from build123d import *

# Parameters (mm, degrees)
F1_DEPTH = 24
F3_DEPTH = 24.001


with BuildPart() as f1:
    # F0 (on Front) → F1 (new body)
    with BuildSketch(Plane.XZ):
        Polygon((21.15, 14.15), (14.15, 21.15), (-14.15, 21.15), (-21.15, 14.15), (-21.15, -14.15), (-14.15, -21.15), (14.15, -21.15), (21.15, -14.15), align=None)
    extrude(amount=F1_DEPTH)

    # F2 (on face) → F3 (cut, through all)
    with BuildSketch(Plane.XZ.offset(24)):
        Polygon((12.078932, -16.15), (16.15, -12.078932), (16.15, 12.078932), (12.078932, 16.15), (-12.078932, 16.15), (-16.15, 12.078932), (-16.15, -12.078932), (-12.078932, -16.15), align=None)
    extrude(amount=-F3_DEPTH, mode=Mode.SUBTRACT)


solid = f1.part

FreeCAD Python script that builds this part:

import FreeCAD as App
import Part
import Sketcher


def add_polygon(sketch, points):
    """Adds a closed chain of lines whose ends are joined by coincident constraints."""
    first, n = sketch.GeometryCount, len(points)
    for a, b in zip(points, points[1:] + points[:1]):
        sketch.addGeometry(Part.LineSegment(App.Vector(*a, 0), App.Vector(*b, 0)), False)
    for i in range(n):
        sketch.addConstraint(Sketcher.Constraint("Coincident", first + i, 2, first + (i + 1) % n, 1))

doc = App.newDocument("Part")
body = doc.addObject("PartDesign::Body", "Body")

# Sketch on XZ plane
sketch1 = body.newObject("Sketcher::SketchObject", "Sketch")
sketch1.AttachmentSupport = (doc.getObject("XZ_Plane"), [""])
sketch1.MapMode = "FlatFace"
add_polygon(sketch1, [(21, 14), (14, 21), (-14, 21), (-21, 14), (-21, -14), (-14, -21), (14, -21), (21, -14)])  # lines 0-7
sketch1.addConstraint([
    Sketcher.Constraint("Horizontal", 1),
    Sketcher.Constraint("Vertical", 3),
    Sketcher.Constraint("Horizontal", 5),
    Sketcher.Constraint("Vertical", 7),
    Sketcher.Constraint("Symmetric", 0, 2, 4, 2, -1, 1),
    Sketcher.Constraint("Symmetric", 2, 2, 6, 2, -1, 1),
    Sketcher.Constraint("Perpendicular", 0, 2),
    Sketcher.Constraint("Perpendicular", 2, 4),
    Sketcher.Constraint("Perpendicular", 4, 6),
    Sketcher.Constraint("Horizontal", 3, 2, 6, 2),
    Sketcher.Constraint("Vertical", 1, 2, 4, 2),
    Sketcher.Constraint("Equal", 5, 3),
    Sketcher.Constraint("DistanceX", 1, 2, 1, 1, 28.3),
    Sketcher.Constraint("DistanceX", 2, 2, 1, 2, 7.0),
])
pad1 = body.newObject("PartDesign::Pad", "Pad")
pad1.Profile = sketch1
pad1.Length = 24

# Sketch on XZ plane
sketch2 = body.newObject("Sketcher::SketchObject", "Sketch001")
sketch2.AttachmentSupport = (doc.getObject("XZ_Plane"), [""])
sketch2.MapMode = "FlatFace"
sketch2.AttachmentOffset = App.Placement(App.Vector(0, 0, 24), App.Rotation())
add_polygon(sketch2, [(12, -16), (16, -12), (16, 12), (12, 16), (-12, 16), (-16, 12), (-16, -12), (-12, -16)])  # lines 0-7
sketch2.addConstraint([
    Sketcher.Constraint("Vertical", 1),
    Sketcher.Constraint("Horizontal", 3),
    Sketcher.Constraint("Vertical", 5),
    Sketcher.Constraint("Horizontal", 7),
    Sketcher.Constraint("Symmetric", 0, 2, 4, 2, -1, 1),
    Sketcher.Constraint("Symmetric", 2, 2, 6, 2, -1, 1),
    Sketcher.Constraint("Perpendicular", 0, 2),
    Sketcher.Constraint("Perpendicular", 2, 4),
    Sketcher.Constraint("Perpendicular", 4, 6),
    Sketcher.Constraint("Horizontal", 1, 2, 4, 2),
    Sketcher.Constraint("Vertical", 3, 2, 6, 2),
    Sketcher.Constraint("Equal", 7, 1),
    Sketcher.Constraint("DistanceX", 4, 2, 1, 2, 32.3),
    Sketcher.Constraint("Distance", 0, 5.75736),
])
pocket1 = body.newObject("PartDesign::Pocket", "Pocket")
pocket1.Profile = sketch2
pocket1.Type = "ThroughAll"

doc.recompute()
